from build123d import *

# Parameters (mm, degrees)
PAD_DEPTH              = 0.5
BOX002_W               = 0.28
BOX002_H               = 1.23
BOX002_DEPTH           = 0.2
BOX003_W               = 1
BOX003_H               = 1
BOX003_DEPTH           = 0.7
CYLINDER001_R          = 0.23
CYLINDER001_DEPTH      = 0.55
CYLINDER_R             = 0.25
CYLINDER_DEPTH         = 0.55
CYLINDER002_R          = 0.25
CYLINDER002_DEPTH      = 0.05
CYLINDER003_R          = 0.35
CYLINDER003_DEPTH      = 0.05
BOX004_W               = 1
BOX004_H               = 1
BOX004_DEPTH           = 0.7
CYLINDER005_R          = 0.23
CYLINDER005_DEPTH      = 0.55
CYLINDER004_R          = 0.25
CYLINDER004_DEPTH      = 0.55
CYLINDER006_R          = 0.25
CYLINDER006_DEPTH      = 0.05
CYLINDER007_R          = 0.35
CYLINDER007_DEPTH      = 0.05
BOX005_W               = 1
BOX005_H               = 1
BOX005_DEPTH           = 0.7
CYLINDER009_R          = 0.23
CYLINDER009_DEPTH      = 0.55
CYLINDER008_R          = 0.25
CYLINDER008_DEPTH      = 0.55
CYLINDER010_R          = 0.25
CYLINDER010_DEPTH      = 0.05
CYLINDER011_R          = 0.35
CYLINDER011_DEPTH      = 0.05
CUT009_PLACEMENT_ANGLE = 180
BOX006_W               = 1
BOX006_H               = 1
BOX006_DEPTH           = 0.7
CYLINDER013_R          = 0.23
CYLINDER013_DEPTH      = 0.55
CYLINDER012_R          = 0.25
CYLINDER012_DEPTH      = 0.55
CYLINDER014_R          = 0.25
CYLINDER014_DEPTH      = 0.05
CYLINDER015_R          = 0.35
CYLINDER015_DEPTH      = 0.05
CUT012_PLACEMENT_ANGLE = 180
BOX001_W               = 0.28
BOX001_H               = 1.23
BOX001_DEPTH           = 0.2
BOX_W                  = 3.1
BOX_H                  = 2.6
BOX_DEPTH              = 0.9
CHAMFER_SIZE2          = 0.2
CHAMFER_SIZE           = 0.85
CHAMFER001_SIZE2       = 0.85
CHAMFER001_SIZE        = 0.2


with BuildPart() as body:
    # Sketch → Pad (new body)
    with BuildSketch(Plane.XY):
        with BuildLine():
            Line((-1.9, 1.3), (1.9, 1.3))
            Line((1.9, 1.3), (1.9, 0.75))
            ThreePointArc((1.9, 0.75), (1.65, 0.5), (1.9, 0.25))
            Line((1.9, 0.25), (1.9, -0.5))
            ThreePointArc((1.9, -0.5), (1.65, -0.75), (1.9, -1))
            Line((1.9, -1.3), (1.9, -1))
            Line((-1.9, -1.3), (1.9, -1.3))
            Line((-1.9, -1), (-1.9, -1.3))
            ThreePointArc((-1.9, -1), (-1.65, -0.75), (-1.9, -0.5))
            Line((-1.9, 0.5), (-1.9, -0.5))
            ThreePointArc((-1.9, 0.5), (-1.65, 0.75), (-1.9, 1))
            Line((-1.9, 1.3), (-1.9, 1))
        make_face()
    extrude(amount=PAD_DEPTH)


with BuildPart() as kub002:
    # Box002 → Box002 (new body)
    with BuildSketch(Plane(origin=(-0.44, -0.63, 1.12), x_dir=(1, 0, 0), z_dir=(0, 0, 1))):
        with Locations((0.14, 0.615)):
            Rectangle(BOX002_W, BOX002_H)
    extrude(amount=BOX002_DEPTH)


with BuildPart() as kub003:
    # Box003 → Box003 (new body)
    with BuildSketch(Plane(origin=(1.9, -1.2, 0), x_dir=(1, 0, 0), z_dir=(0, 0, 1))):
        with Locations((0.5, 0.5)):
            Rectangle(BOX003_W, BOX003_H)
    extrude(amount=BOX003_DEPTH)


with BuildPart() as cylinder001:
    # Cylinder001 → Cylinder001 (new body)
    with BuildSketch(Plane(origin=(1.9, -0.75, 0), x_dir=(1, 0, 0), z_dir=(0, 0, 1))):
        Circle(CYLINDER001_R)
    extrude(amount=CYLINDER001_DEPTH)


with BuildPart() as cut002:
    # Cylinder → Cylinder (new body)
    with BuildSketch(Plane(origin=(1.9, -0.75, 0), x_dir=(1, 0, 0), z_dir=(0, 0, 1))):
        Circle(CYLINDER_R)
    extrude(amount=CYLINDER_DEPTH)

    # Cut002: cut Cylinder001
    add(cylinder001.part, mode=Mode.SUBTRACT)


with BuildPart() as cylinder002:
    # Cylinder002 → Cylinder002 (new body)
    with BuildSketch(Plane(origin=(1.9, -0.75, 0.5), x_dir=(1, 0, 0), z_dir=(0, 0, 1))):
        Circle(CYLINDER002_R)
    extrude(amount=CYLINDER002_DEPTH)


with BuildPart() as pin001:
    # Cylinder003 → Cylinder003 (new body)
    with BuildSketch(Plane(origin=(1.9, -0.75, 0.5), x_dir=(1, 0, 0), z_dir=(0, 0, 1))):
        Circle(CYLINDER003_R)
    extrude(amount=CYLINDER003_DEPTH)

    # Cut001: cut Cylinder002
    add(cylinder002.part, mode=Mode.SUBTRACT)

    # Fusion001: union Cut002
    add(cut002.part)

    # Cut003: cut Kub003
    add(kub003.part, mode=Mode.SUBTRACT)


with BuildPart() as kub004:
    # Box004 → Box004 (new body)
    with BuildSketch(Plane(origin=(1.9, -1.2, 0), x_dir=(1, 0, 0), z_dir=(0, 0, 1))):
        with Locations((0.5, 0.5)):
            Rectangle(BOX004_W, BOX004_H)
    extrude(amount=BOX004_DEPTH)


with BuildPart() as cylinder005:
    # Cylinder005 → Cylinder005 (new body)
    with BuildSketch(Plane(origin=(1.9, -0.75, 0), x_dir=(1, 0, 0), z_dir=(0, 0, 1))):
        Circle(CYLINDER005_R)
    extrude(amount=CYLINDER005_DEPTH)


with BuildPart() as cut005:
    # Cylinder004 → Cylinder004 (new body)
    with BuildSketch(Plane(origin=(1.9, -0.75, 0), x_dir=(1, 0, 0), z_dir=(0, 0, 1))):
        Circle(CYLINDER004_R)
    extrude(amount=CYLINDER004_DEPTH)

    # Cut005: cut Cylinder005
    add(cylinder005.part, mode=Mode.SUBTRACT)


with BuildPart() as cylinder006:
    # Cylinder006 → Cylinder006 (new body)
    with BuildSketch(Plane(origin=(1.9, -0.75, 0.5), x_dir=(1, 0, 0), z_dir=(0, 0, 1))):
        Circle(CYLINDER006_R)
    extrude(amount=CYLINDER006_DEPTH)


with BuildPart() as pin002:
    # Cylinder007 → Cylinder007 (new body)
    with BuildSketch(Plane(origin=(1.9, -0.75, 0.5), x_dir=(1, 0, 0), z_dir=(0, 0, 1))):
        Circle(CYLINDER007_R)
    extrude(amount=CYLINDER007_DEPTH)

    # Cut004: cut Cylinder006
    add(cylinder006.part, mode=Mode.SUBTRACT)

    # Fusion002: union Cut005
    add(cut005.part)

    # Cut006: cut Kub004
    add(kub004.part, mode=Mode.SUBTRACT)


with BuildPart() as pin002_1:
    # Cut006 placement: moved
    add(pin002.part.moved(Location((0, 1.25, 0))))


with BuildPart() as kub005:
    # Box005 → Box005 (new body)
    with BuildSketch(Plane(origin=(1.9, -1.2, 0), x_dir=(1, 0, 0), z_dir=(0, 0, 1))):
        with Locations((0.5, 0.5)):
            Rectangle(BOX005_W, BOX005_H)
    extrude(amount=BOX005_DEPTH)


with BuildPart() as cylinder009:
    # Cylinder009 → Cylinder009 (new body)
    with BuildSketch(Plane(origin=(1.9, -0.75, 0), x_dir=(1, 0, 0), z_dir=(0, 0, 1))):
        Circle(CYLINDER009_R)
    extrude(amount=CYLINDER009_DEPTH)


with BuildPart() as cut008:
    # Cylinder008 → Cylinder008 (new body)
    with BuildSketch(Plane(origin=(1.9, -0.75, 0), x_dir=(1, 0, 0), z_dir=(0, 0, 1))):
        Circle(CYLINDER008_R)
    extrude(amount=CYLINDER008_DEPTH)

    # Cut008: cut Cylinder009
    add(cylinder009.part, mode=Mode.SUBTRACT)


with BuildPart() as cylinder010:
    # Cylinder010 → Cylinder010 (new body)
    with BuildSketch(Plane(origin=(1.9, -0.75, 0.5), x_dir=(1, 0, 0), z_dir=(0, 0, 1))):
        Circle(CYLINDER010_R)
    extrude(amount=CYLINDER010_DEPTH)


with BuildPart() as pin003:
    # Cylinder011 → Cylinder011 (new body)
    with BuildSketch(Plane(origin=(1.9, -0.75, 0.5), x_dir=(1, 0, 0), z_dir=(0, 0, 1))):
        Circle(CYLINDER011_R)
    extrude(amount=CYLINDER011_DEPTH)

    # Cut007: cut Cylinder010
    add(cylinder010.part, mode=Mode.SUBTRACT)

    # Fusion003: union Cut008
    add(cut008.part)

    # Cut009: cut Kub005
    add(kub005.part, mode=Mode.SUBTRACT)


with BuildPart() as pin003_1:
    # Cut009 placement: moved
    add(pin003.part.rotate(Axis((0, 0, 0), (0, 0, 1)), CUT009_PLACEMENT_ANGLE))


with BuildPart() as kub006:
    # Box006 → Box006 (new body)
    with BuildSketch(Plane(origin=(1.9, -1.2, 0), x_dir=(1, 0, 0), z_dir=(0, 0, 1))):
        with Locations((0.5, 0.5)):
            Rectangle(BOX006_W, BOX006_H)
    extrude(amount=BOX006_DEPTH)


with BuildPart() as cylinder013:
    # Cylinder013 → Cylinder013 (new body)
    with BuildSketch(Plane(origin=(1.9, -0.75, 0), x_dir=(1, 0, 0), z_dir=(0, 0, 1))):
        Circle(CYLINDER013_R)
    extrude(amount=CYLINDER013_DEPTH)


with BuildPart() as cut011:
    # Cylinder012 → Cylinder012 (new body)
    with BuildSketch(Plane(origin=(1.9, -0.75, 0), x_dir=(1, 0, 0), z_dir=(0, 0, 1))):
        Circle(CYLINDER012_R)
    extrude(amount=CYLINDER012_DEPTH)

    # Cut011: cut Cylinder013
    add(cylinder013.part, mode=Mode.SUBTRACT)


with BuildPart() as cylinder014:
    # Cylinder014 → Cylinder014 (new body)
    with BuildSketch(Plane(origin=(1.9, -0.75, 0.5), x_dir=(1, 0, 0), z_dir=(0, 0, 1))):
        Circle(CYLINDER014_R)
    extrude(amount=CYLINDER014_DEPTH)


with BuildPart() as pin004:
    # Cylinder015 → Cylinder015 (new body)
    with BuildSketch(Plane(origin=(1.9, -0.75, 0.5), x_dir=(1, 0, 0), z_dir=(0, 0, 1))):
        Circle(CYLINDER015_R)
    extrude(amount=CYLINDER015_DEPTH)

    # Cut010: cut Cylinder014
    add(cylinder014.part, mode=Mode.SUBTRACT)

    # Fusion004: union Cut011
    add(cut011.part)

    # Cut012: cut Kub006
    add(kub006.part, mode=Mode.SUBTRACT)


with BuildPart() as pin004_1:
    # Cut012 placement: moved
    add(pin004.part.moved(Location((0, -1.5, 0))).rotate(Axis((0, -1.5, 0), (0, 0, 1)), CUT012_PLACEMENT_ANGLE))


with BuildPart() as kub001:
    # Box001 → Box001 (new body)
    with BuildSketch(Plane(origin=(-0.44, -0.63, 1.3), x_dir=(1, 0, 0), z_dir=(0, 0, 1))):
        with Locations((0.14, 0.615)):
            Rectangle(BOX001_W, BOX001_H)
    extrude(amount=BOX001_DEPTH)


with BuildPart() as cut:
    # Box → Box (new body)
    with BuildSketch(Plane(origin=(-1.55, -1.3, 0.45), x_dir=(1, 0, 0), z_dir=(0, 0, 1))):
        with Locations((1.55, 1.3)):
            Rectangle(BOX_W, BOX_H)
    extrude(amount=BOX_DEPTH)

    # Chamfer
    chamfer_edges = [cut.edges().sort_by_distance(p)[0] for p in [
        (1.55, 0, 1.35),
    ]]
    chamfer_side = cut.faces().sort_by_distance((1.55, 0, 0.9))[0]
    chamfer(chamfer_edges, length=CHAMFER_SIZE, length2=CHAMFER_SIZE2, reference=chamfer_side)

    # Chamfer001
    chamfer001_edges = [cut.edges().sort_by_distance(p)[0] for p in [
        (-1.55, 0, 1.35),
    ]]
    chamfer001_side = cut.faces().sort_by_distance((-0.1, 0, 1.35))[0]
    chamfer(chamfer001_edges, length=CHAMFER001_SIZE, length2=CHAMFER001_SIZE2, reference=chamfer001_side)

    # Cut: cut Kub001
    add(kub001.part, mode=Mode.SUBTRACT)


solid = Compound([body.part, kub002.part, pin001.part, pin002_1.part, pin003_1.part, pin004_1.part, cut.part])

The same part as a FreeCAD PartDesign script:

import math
import FreeCAD as App
import Part
import Sketcher
from FreeCAD import Vector


def edges_at(feature, points):
    """Names of the edges that pass closest to the given points."""
    edges = feature.Shape.Edges
    near = lambda p: min(range(len(edges)), key=lambda i: edges[i].distToShape(Part.Vertex(*p))[0])
    return sorted({f"Edge{near(p) + 1}" for p in points})


def add_polygon(sketch, points):
    """Adds a closed chain of lines whose ends are joined by coincident constraints."""
    first, n = sketch.GeometryCount, len(points)
    for a, b in zip(points, points[1:] + points[:1]):
        sketch.addGeometry(Part.LineSegment(App.Vector(*a, 0), App.Vector(*b, 0)), False)
    for i in range(n):
        sketch.addConstraint(Sketcher.Constraint("Coincident", first + i, 2, first + (i + 1) % n, 1))

doc = App.newDocument("Part")
body = doc.addObject("PartDesign::Body", "Body")

# Sketch on XY plane
sketch1 = body.newObject("Sketcher::SketchObject", "Sketch")
sketch1.AttachmentSupport = (doc.getObject("XY_Plane"), [""])
sketch1.MapMode = "FlatFace"
sketch1.addGeometry(Part.LineSegment(Vector(1.9, 1.3, 0), Vector(-1.9, 1.3, 0)), False)
sketch1.addGeometry(Part.LineSegment(Vector(-1.9, 1.3, 0), Vector(-1.9, 1, 0)), False)
sketch1.addGeometry(Part.ArcOfCircle(Part.Circle(Vector(-1.9, 0.75, 0), Vector(0, 0, 1), 0.25), math.radians(-90), math.radians(90)), False)
sketch1.addGeometry(Part.LineSegment(Vector(-1.9, 0.5, 0), Vector(-1.9, -0.5, 0)), False)
sketch1.addGeometry(Part.ArcOfCircle(Part.Circle(Vector(-1.9, -0.75, 0), Vector(0, 0, 1), 0.25), math.radians(-90), math.radians(90)), False)
sketch1.addGeometry(Part.LineSegment(Vector(-1.9, -1, 0), Vector(-1.9, -1.3, 0)), False)
sketch1.addGeometry(Part.LineSegment(Vector(-1.9, -1.3, 0), Vector(1.9, -1.3, 0)), False)
sketch1.addGeometry(Part.LineSegment(Vector(1.9, -1.3, 0), Vector(1.9, -1, 0)), False)
sketch1.addGeometry(Part.ArcOfCircle(Part.Circle(Vector(1.9, -0.75, 0), Vector(0, 0, 1), 0.25), math.radians(90), math.radians(270)), False)
sketch1.addGeometry(Part.LineSegment(Vector(1.9, -0.5, 0), Vector(1.9, 0.25, 0)), False)
sketch1.addGeometry(Part.ArcOfCircle(Part.Circle(Vector(1.9, 0.5, 0), Vector(0, 0, 1), 0.25), math.radians(90), math.radians(270)), False)
sketch1.addGeometry(Part.LineSegment(Vector(1.9, 0.75, 0), Vector(1.9, 1.3, 0)), False)
sketch1.addConstraint(Sketcher.Constraint("Coincident", 0, 2, 1, 1))
sketch1.addConstraint(Sketcher.Constraint("Coincident", 1, 2, 2, 2))
sketch1.addConstraint(Sketcher.Constraint("Coincident", 2, 1, 3, 1))
sketch1.addConstraint(Sketcher.Constraint("Coincident", 3, 2, 4, 2))
sketch1.addConstraint(Sketcher.Constraint("Coincident", 4, 1, 5, 1))
sketch1.addConstraint(Sketcher.Constraint("Coincident", 5, 2, 6, 1))
sketch1.addConstraint(Sketcher.Constraint("Coincident", 6, 2, 7, 1))
sketch1.addConstraint(Sketcher.Constraint("Coincident", 7, 2, 8, 2))
sketch1.addConstraint(Sketcher.Constraint("Coincident", 8, 1, 9, 1))
sketch1.addConstraint(Sketcher.Constraint("Coincident", 9, 2, 10, 2))
sketch1.addConstraint(Sketcher.Constraint("Coincident", 10, 1, 11, 1))
sketch1.addConstraint(Sketcher.Constraint("Coincident", 11, 2, 0, 1))
sketch1.addConstraint(Sketcher.Constraint("Horizontal", 0))
sketch1.addConstraint(Sketcher.Constraint("Vertical", 1))
sketch1.addConstraint(Sketcher.Constraint("Vertical", 3))
sketch1.addConstraint(Sketcher.Constraint("Vertical", 5))
sketch1.addConstraint(Sketcher.Constraint("Horizontal", 6))
sketch1.addConstraint(Sketcher.Constraint("Vertical", 7))
sketch1.addConstraint(Sketcher.Constraint("Vertical", 9))
sketch1.addConstraint(Sketcher.Constraint("Vertical", 11))
sketch1.addConstraint(Sketcher.Constraint("Equal", 2, 4))
sketch1.addConstraint(Sketcher.Constraint("Equal", 4, 8))
sketch1.addConstraint(Sketcher.Constraint("Equal", 8, 10))
sketch1.addConstraint(Sketcher.Constraint("Symmetric", 2, 3, 8, 3, -1, 1))
sketch1.addConstraint(Sketcher.Constraint("Symmetric", 0, 2, 6, 2, -1, 1))
sketch1.addConstraint(Sketcher.Constraint("Symmetric", 4, 3, 8, 3, -2))
sketch1.addConstraint(Sketcher.Constraint("Horizontal", 10, 3, 2, 1))
sketch1.addConstraint(Sketcher.Constraint("Vertical", 8, 3, 10, 3))
sketch1.addConstraint(Sketcher.Constraint("Vertical", 4, 3, 0, 2))
sketch1.addConstraint(Sketcher.Constraint("Vertical", 1, 2, 2, 1))
sketch1.addConstraint(Sketcher.Constraint("Vertical", 3, 2, 4, 1))
sketch1.addConstraint(Sketcher.Constraint("Vertical", 7, 2, 8, 1))
sketch1.addConstraint(Sketcher.Constraint("Vertical", 9, 2, 10, 1))
sketch1.addConstraint(Sketcher.Constraint("DistanceY", 3, 2, 3, 1, 1.0))
sketch1.addConstraint(Sketcher.Constraint("Radius", 2, 0.25))
sketch1.addConstraint(Sketcher.Constraint("DistanceX", 0, 2, 0, 1, 3.8))
sketch1.addConstraint(Sketcher.Constraint("DistanceY", 1, 2, 1, 1, 0.3))
pad1 = body.newObject("PartDesign::Pad", "Pad")
pad1.Profile = sketch1
pad1.Length = 0.5
body2 = doc.addObject("PartDesign::Body", "Body001")

# Sketch on XY plane
sketch2 = body2.newObject("Sketcher::SketchObject", "Sketch001")
sketch2.AttachmentSupport = (doc.getObject("XY_Plane001"), [""])
sketch2.MapMode = "FlatFace"
sketch2.AttachmentOffset = App.Placement(Vector(0, 0, 1.12), App.Rotation())
add_polygon(sketch2, [(-0.44, 0.6), (-0.44, -0.63), (-0.16, -0.63), (-0.16, 0.6)])  # lines 0-3
sketch2.addConstraint(Sketcher.Constraint("Vertical", 0))
sketch2.addConstraint(Sketcher.Constraint("Horizontal", 1))
sketch2.addConstraint(Sketcher.Constraint("Vertical", 2))
sketch2.addConstraint(Sketcher.Constraint("Horizontal", 3))
sketch2.addConstraint(Sketcher.Constraint("DistanceX", 1, 1, 1, 2, 0.28))
sketch2.addConstraint(Sketcher.Constraint("DistanceY", 0, 2, 0, 1, 1.23))
sketch2.addConstraint(Sketcher.Constraint("DistanceY", -1, 1, 2, 2, 0.6))
sketch2.addConstraint(Sketcher.Constraint("DistanceX", 0, 2, -1, 1, 0.44))
pad2 = body2.newObject("PartDesign::Pad", "Pad001")
pad2.Profile = sketch2
pad2.Length = 0.2
body3 = doc.addObject("PartDesign::Body", "Body002")

# Sketch on XY plane
sketch3 = body3.newObject("Sketcher::SketchObject", "Sketch002")
sketch3.AttachmentSupport = (doc.getObject("XY_Plane002"), [""])
sketch3.MapMode = "FlatFace"
add_polygon(sketch3, [(1.9, -0.2), (1.9, -1.2), (2.9, -1.2), (2.9, -0.2)])  # lines 0-3
sketch3.addConstraint(Sketcher.Constraint("Vertical", 0))
sketch3.addConstraint(Sketcher.Constraint("Horizontal", 1))
sketch3.addConstraint(Sketcher.Constraint("Vertical", 2))
sketch3.addConstraint(Sketcher.Constraint("Horizontal", 3))
sketch3.addConstraint(Sketcher.Constraint("Equal", 3, 0))
sketch3.addConstraint(Sketcher.Constraint("DistanceX", 1, 1, 1, 2, 1.0))
sketch3.addConstraint(Sketcher.Constraint("DistanceX", -1, 1, 0, 2, 1.9))
sketch3.addConstraint(Sketcher.Constraint("DistanceY", 0, 2, -1, 1, 1.2))
pad3 = body3.newObject("PartDesign::Pad", "Pad002")
pad3.Profile = sketch3
pad3.Length = 0.7
body4 = doc.addObject("PartDesign::Body", "Body003")

# Sketch on XY plane
sketch4 = body4.newObject("Sketcher::SketchObject", "Sketch003")
sketch4.AttachmentSupport = (doc.getObject("XY_Plane003"), [""])
sketch4.MapMode = "FlatFace"
sketch4.addGeometry(Part.Circle(Vector(1.9, -0.75, 0), Vector(0, 0, 1), 0.23), False)
sketch4.addConstraint(Sketcher.Constraint("Diameter", 0, 0.46))
sketch4.addConstraint(Sketcher.Constraint("DistanceX", -1, 1, 0, 3, 1.9))
sketch4.addConstraint(Sketcher.Constraint("DistanceY", 0, 3, -1, 1, 0.75))
pad4 = body4.newObject("PartDesign::Pad", "Pad003")
pad4.Profile = sketch4
pad4.Length = 0.55
body5 = doc.addObject("PartDesign::Body", "Body004")

# Sketch on XY plane
sketch5 = body5.newObject("Sketcher::SketchObject", "Sketch004")
sketch5.AttachmentSupport = (doc.getObject("XY_Plane004"), [""])
sketch5.MapMode = "FlatFace"
sketch5.addGeometry(Part.Circle(Vector(1.9, -0.75, 0), Vector(0, 0, 1), 0.25), False)
sketch5.addConstraint(Sketcher.Constraint("Diameter", 0, 0.5))
sketch5.addConstraint(Sketcher.Constraint("DistanceX", -1, 1, 0, 3, 1.9))
sketch5.addConstraint(Sketcher.Constraint("DistanceY", 0, 3, -1, 1, 0.75))
pad5 = body5.newObject("PartDesign::Pad", "Pad004")
pad5.Profile = sketch5
pad5.Length = 0.55
doc.recompute()

boolean = body5.newObject("PartDesign::Boolean", "Boolean")
boolean.Type = "Cut"
boolean.addObjects([body4])
body6 = doc.addObject("PartDesign::Body", "Body005")

# Sketch on XY plane
sketch6 = body6.newObject("Sketcher::SketchObject", "Sketch005")
sketch6.AttachmentSupport = (doc.getObject("XY_Plane005"), [""])
sketch6.MapMode = "FlatFace"
sketch6.AttachmentOffset = App.Placement(Vector(0, 0, 0.5), App.Rotation())
sketch6.addGeometry(Part.Circle(Vector(1.9, -0.75, 0), Vector(0, 0, 1), 0.25), False)
sketch6.addConstraint(Sketcher.Constraint("Diameter", 0, 0.5))
sketch6.addConstraint(Sketcher.Constraint("DistanceX", -1, 1, 0, 3, 1.9))
sketch6.addConstraint(Sketcher.Constraint("DistanceY", 0, 3, -1, 1, 0.75))
pad6 = body6.newObject("PartDesign::Pad", "Pad005")
pad6.Profile = sketch6
pad6.Length = 0.05
body7 = doc.addObject("PartDesign::Body", "Body006")

# Sketch on XY plane
sketch7 = body7.newObject("Sketcher::SketchObject", "Sketch006")
sketch7.AttachmentSupport = (doc.getObject("XY_Plane006"), [""])
sketch7.MapMode = "FlatFace"
sketch7.AttachmentOffset = App.Placement(Vector(0, 0, 0.5), App.Rotation())
sketch7.addGeometry(Part.Circle(Vector(1.9, -0.75, 0), Vector(0, 0, 1), 0.35), False)
sketch7.addConstraint(Sketcher.Constraint("Diameter", 0, 0.7))
sketch7.addConstraint(Sketcher.Constraint("DistanceX", -1, 1, 0, 3, 1.9))
sketch7.addConstraint(Sketcher.Constraint("DistanceY", 0, 3, -1, 1, 0.75))
pad7 = body7.newObject("PartDesign::Pad", "Pad006")
pad7.Profile = sketch7
pad7.Length = 0.05
doc.recompute()

boolean2 = body7.newObject("PartDesign::Boolean", "Boolean001")
boolean2.Type = "Cut"
boolean2.addObjects([body6])
doc.recompute()

boolean3 = body7.newObject("PartDesign::Boolean", "Boolean002")
boolean3.Type = "Fuse"
boolean3.addObjects([body5])
doc.recompute()

boolean4 = body7.newObject("PartDesign::Boolean", "Boolean003")
boolean4.Type = "Cut"
boolean4.addObjects([body3])
body8 = doc.addObject("PartDesign::Body", "Body007")

# Sketch on XY plane
sketch8 = body8.newObject("Sketcher::SketchObject", "Sketch007")
sketch8.AttachmentSupport = (doc.getObject("XY_Plane007"), [""])
sketch8.MapMode = "FlatFace"
add_polygon(sketch8, [(1.9, -0.2), (1.9, -1.2), (2.9, -1.2), (2.9, -0.2)])  # lines 0-3
sketch8.addConstraint(Sketcher.Constraint("Vertical", 0))
sketch8.addConstraint(Sketcher.Constraint("Horizontal", 1))
sketch8.addConstraint(Sketcher.Constraint("Vertical", 2))
sketch8.addConstraint(Sketcher.Constraint("Horizontal", 3))
sketch8.addConstraint(Sketcher.Constraint("Equal", 3, 0))
sketch8.addConstraint(Sketcher.Constraint("DistanceX", 1, 1, 1, 2, 1.0))
sketch8.addConstraint(Sketcher.Constraint("DistanceX", -1, 1, 0, 2, 1.9))
sketch8.addConstraint(Sketcher.Constraint("DistanceY", 0, 2, -1, 1, 1.2))
pad8 = body8.newObject("PartDesign::Pad", "Pad007")
pad8.Profile = sketch8
pad8.Length = 0.7
body9 = doc.addObject("PartDesign::Body", "Body008")

# Sketch on XY plane
sketch9 = body9.newObject("Sketcher::SketchObject", "Sketch008")
sketch9.AttachmentSupport = (doc.getObject("XY_Plane008"), [""])
sketch9.MapMode = "FlatFace"
sketch9.addGeometry(Part.Circle(Vector(1.9, -0.75, 0), Vector(0, 0, 1), 0.23), False)
sketch9.addConstraint(Sketcher.Constraint("Diameter", 0, 0.46))
sketch9.addConstraint(Sketcher.Constraint("DistanceX", -1, 1, 0, 3, 1.9))
sketch9.addConstraint(Sketcher.Constraint("DistanceY", 0, 3, -1, 1, 0.75))
pad9 = body9.newObject("PartDesign::Pad", "Pad008")
pad9.Profile = sketch9
pad9.Length = 0.55
body10 = doc.addObject("PartDesign::Body", "Body009")

# Sketch on XY plane
sketch10 = body10.newObject("Sketcher::SketchObject", "Sketch009")
sketch10.AttachmentSupport = (doc.getObject("XY_Plane009"), [""])
sketch10.MapMode = "FlatFace"
sketch10.addGeometry(Part.Circle(Vector(1.9, -0.75, 0), Vector(0, 0, 1), 0.25), False)
sketch10.addConstraint(Sketcher.Constraint("Diameter", 0, 0.5))
sketch10.addConstraint(Sketcher.Constraint("DistanceX", -1, 1, 0, 3, 1.9))
sketch10.addConstraint(Sketcher.Constraint("DistanceY", 0, 3, -1, 1, 0.75))
pad10 = body10.newObject("PartDesign::Pad", "Pad009")
pad10.Profile = sketch10
pad10.Length = 0.55
doc.recompute()

boolean5 = body10.newObject("PartDesign::Boolean", "Boolean004")
boolean5.Type = "Cut"
boolean5.addObjects([body9])
body11 = doc.addObject("PartDesign::Body", "Body010")

# Sketch on XY plane
sketch11 = body11.newObject("Sketcher::SketchObject", "Sketch010")
sketch11.AttachmentSupport = (doc.getObject("XY_Plane010"), [""])
sketch11.MapMode = "FlatFace"
sketch11.AttachmentOffset = App.Placement(Vector(0, 0, 0.5), App.Rotation())
sketch11.addGeometry(Part.Circle(Vector(1.9, -0.75, 0), Vector(0, 0, 1), 0.25), False)
sketch11.addConstraint(Sketcher.Constraint("Diameter", 0, 0.5))
sketch11.addConstraint(Sketcher.Constraint("DistanceX", -1, 1, 0, 3, 1.9))
sketch11.addConstraint(Sketcher.Constraint("DistanceY", 0, 3, -1, 1, 0.75))
pad11 = body11.newObject("PartDesign::Pad", "Pad010")
pad11.Profile = sketch11
pad11.Length = 0.05
body12 = doc.addObject("PartDesign::Body", "Body011")

# Sketch on XY plane
sketch12 = body12.newObject("Sketcher::SketchObject", "Sketch011")
sketch12.AttachmentSupport = (doc.getObject("XY_Plane011"), [""])
sketch12.MapMode = "FlatFace"
sketch12.AttachmentOffset = App.Placement(Vector(0, 0, 0.5), App.Rotation())
sketch12.addGeometry(Part.Circle(Vector(1.9, -0.75, 0), Vector(0, 0, 1), 0.35), False)
sketch12.addConstraint(Sketcher.Constraint("Diameter", 0, 0.7))
sketch12.addConstraint(Sketcher.Constraint("DistanceX", -1, 1, 0, 3, 1.9))
sketch12.addConstraint(Sketcher.Constraint("DistanceY", 0, 3, -1, 1, 0.75))
pad12 = body12.newObject("PartDesign::Pad", "Pad011")
pad12.Profile = sketch12
pad12.Length = 0.05
doc.recompute()

boolean6 = body12.newObject("PartDesign::Boolean", "Boolean005")
boolean6.Type = "Cut"
boolean6.addObjects([body11])
doc.recompute()

boolean7 = body12.newObject("PartDesign::Boolean", "Boolean006")
boolean7.Type = "Fuse"
boolean7.addObjects([body10])
doc.recompute()

boolean8 = body12.newObject("PartDesign::Boolean", "Boolean007")
boolean8.Type = "Cut"
boolean8.addObjects([body8])
body13 = doc.addObject("PartDesign::Body", "Body012")
doc.recompute()

body12.Placement = App.Placement(Vector(0, 1.25, 0), App.Rotation(Vector(0, 0, 1), 0))
boolean9 = body13.newObject("PartDesign::Boolean", "Boolean008")
boolean9.Type = "Fuse"
boolean9.addObjects([body12])
body14 = doc.addObject("PartDesign::Body", "Body013")

# Sketch on XY plane
sketch13 = body14.newObject("Sketcher::SketchObject", "Sketch012")
sketch13.AttachmentSupport = (doc.getObject("XY_Plane013"), [""])
sketch13.MapMode = "FlatFace"
add_polygon(sketch13, [(1.9, -0.2), (1.9, -1.2), (2.9, -1.2), (2.9, -0.2)])  # lines 0-3
sketch13.addConstraint(Sketcher.Constraint("Vertical", 0))
sketch13.addConstraint(Sketcher.Constraint("Horizontal", 1))
sketch13.addConstraint(Sketcher.Constraint("Vertical", 2))
sketch13.addConstraint(Sketcher.Constraint("Horizontal", 3))
sketch13.addConstraint(Sketcher.Constraint("Equal", 3, 0))
sketch13.addConstraint(Sketcher.Constraint("DistanceX", 1, 1, 1, 2, 1.0))
sketch13.addConstraint(Sketcher.Constraint("DistanceX", -1, 1, 0, 2, 1.9))
sketch13.addConstraint(Sketcher.Constraint("DistanceY", 0, 2, -1, 1, 1.2))
pad13 = body14.newObject("PartDesign::Pad", "Pad012")
pad13.Profile = sketch13
pad13.Length = 0.7
body15 = doc.addObject("PartDesign::Body", "Body014")

# Sketch on XY plane
sketch14 = body15.newObject("Sketcher::SketchObject", "Sketch013")
sketch14.AttachmentSupport = (doc.getObject("XY_Plane014"), [""])
sketch14.MapMode = "FlatFace"
sketch14.addGeometry(Part.Circle(Vector(1.9, -0.75, 0), Vector(0, 0, 1), 0.23), False)
sketch14.addConstraint(Sketcher.Constraint("Diameter", 0, 0.46))
sketch14.addConstraint(Sketcher.Constraint("DistanceX", -1, 1, 0, 3, 1.9))
sketch14.addConstraint(Sketcher.Constraint("DistanceY", 0, 3, -1, 1, 0.75))
pad14 = body15.newObject("PartDesign::Pad", "Pad013")
pad14.Profile = sketch14
pad14.Length = 0.55
body16 = doc.addObject("PartDesign::Body", "Body015")

# Sketch on XY plane
sketch15 = body16.newObject("Sketcher::SketchObject", "Sketch014")
sketch15.AttachmentSupport = (doc.getObject("XY_Plane015"), [""])
sketch15.MapMode = "FlatFace"
sketch15.addGeometry(Part.Circle(Vector(1.9, -0.75, 0), Vector(0, 0, 1), 0.25), False)
sketch15.addConstraint(Sketcher.Constraint("Diameter", 0, 0.5))
sketch15.addConstraint(Sketcher.Constraint("DistanceX", -1, 1, 0, 3, 1.9))
sketch15.addConstraint(Sketcher.Constraint("DistanceY", 0, 3, -1, 1, 0.75))
pad15 = body16.newObject("PartDesign::Pad", "Pad014")
pad15.Profile = sketch15
pad15.Length = 0.55
doc.recompute()

boolean10 = body16.newObject("PartDesign::Boolean", "Boolean009")
boolean10.Type = "Cut"
boolean10.addObjects([body15])
body17 = doc.addObject("PartDesign::Body", "Body016")

# Sketch on XY plane
sketch16 = body17.newObject("Sketcher::SketchObject", "Sketch015")
sketch16.AttachmentSupport = (doc.getObject("XY_Plane016"), [""])
sketch16.MapMode = "FlatFace"
sketch16.AttachmentOffset = App.Placement(Vector(0, 0, 0.5), App.Rotation())
sketch16.addGeometry(Part.Circle(Vector(1.9, -0.75, 0), Vector(0, 0, 1), 0.25), False)
sketch16.addConstraint(Sketcher.Constraint("Diameter", 0, 0.5))
sketch16.addConstraint(Sketcher.Constraint("DistanceX", -1, 1, 0, 3, 1.9))
sketch16.addConstraint(Sketcher.Constraint("DistanceY", 0, 3, -1, 1, 0.75))
pad16 = body17.newObject("PartDesign::Pad", "Pad015")
pad16.Profile = sketch16
pad16.Length = 0.05
body18 = doc.addObject("PartDesign::Body", "Body017")

# Sketch on XY plane
sketch17 = body18.newObject("Sketcher::SketchObject", "Sketch016")
sketch17.AttachmentSupport = (doc.getObject("XY_Plane017"), [""])
sketch17.MapMode = "FlatFace"
sketch17.AttachmentOffset = App.Placement(Vector(0, 0, 0.5), App.Rotation())
sketch17.addGeometry(Part.Circle(Vector(1.9, -0.75, 0), Vector(0, 0, 1), 0.35), False)
sketch17.addConstraint(Sketcher.Constraint("Diameter", 0, 0.7))
sketch17.addConstraint(Sketcher.Constraint("DistanceX", -1, 1, 0, 3, 1.9))
sketch17.addConstraint(Sketcher.Constraint("DistanceY", 0, 3, -1, 1, 0.75))
pad17 = body18.newObject("PartDesign::Pad", "Pad016")
pad17.Profile = sketch17
pad17.Length = 0.05
doc.recompute()

boolean11 = body18.newObject("PartDesign::Boolean", "Boolean010")
boolean11.Type = "Cut"
boolean11.addObjects([body17])
doc.recompute()

boolean12 = body18.newObject("PartDesign::Boolean", "Boolean011")
boolean12.Type = "Fuse"
boolean12.addObjects([body16])
doc.recompute()

boolean13 = body18.newObject("PartDesign::Boolean", "Boolean012")
boolean13.Type = "Cut"
boolean13.addObjects([body14])
body19 = doc.addObject("PartDesign::Body", "Body018")
doc.recompute()

body18.Placement = App.Placement(Vector(0, 0, 0), App.Rotation(Vector(0, 0, 1), 180))
boolean14 = body19.newObject("PartDesign::Boolean", "Boolean013")
boolean14.Type = "Fuse"
boolean14.addObjects([body18])
body20 = doc.addObject("PartDesign::Body", "Body019")

# Sketch on XY plane
sketch18 = body20.newObject("Sketcher::SketchObject", "Sketch017")
sketch18.AttachmentSupport = (doc.getObject("XY_Plane019"), [""])
sketch18.MapMode = "FlatFace"
add_polygon(sketch18, [(1.9, -0.2), (1.9, -1.2), (2.9, -1.2), (2.9, -0.2)])  # lines 0-3
sketch18.addConstraint(Sketcher.Constraint("Vertical", 0))
sketch18.addConstraint(Sketcher.Constraint("Horizontal", 1))
sketch18.addConstraint(Sketcher.Constraint("Vertical", 2))
sketch18.addConstraint(Sketcher.Constraint("Horizontal", 3))
sketch18.addConstraint(Sketcher.Constraint("Equal", 3, 0))
sketch18.addConstraint(Sketcher.Constraint("DistanceX", 1, 1, 1, 2, 1.0))
sketch18.addConstraint(Sketcher.Constraint("DistanceX", -1, 1, 0, 2, 1.9))
sketch18.addConstraint(Sketcher.Constraint("DistanceY", 0, 2, -1, 1, 1.2))
pad18 = body20.newObject("PartDesign::Pad", "Pad017")
pad18.Profile = sketch18
pad18.Length = 0.7
body21 = doc.addObject("PartDesign::Body", "Body020")

# Sketch on XY plane
sketch19 = body21.newObject("Sketcher::SketchObject", "Sketch018")
sketch19.AttachmentSupport = (doc.getObject("XY_Plane020"), [""])
sketch19.MapMode = "FlatFace"
sketch19.addGeometry(Part.Circle(Vector(1.9, -0.75, 0), Vector(0, 0, 1), 0.23), False)
sketch19.addConstraint(Sketcher.Constraint("Diameter", 0, 0.46))
sketch19.addConstraint(Sketcher.Constraint("DistanceX", -1, 1, 0, 3, 1.9))
sketch19.addConstraint(Sketcher.Constraint("DistanceY", 0, 3, -1, 1, 0.75))
pad19 = body21.newObject("PartDesign::Pad", "Pad018")
pad19.Profile = sketch19
pad19.Length = 0.55
body22 = doc.addObject("PartDesign::Body", "Body021")

# Sketch on XY plane
sketch20 = body22.newObject("Sketcher::SketchObject", "Sketch019")
sketch20.AttachmentSupport = (doc.getObject("XY_Plane021"), [""])
sketch20.MapMode = "FlatFace"
sketch20.addGeometry(Part.Circle(Vector(1.9, -0.75, 0), Vector(0, 0, 1), 0.25), False)
sketch20.addConstraint(Sketcher.Constraint("Diameter", 0, 0.5))
sketch20.addConstraint(Sketcher.Constraint("DistanceX", -1, 1, 0, 3, 1.9))
sketch20.addConstraint(Sketcher.Constraint("DistanceY", 0, 3, -1, 1, 0.75))
pad20 = body22.newObject("PartDesign::Pad", "Pad019")
pad20.Profile = sketch20
pad20.Length = 0.55
doc.recompute()

boolean15 = body22.newObject("PartDesign::Boolean", "Boolean014")
boolean15.Type = "Cut"
boolean15.addObjects([body21])
body23 = doc.addObject("PartDesign::Body", "Body022")

# Sketch on XY plane
sketch21 = body23.newObject("Sketcher::SketchObject", "Sketch020")
sketch21.AttachmentSupport = (doc.getObject("XY_Plane022"), [""])
sketch21.MapMode = "FlatFace"
sketch21.AttachmentOffset = App.Placement(Vector(0, 0, 0.5), App.Rotation())
sketch21.addGeometry(Part.Circle(Vector(1.9, -0.75, 0), Vector(0, 0, 1), 0.25), False)
sketch21.addConstraint(Sketcher.Constraint("Diameter", 0, 0.5))
sketch21.addConstraint(Sketcher.Constraint("DistanceX", -1, 1, 0, 3, 1.9))
sketch21.addConstraint(Sketcher.Constraint("DistanceY", 0, 3, -1, 1, 0.75))
pad21 = body23.newObject("PartDesign::Pad", "Pad020")
pad21.Profile = sketch21
pad21.Length = 0.05
body24 = doc.addObject("PartDesign::Body", "Body023")

# Sketch on XY plane
sketch22 = body24.newObject("Sketcher::SketchObject", "Sketch021")
sketch22.AttachmentSupport = (doc.getObject("XY_Plane023"), [""])
sketch22.MapMode = "FlatFace"
sketch22.AttachmentOffset = App.Placement(Vector(0, 0, 0.5), App.Rotation())
sketch22.addGeometry(Part.Circle(Vector(1.9, -0.75, 0), Vector(0, 0, 1), 0.35), False)
sketch22.addConstraint(Sketcher.Constraint("Diameter", 0, 0.7))
sketch22.addConstraint(Sketcher.Constraint("DistanceX", -1, 1, 0, 3, 1.9))
sketch22.addConstraint(Sketcher.Constraint("DistanceY", 0, 3, -1, 1, 0.75))
pad22 = body24.newObject("PartDesign::Pad", "Pad021")
pad22.Profile = sketch22
pad22.Length = 0.05
doc.recompute()

boolean16 = body24.newObject("PartDesign::Boolean", "Boolean015")
boolean16.Type = "Cut"
boolean16.addObjects([body23])
doc.recompute()

boolean17 = body24.newObject("PartDesign::Boolean", "Boolean016")
boolean17.Type = "Fuse"
boolean17.addObjects([body22])
doc.recompute()

boolean18 = body24.newObject("PartDesign::Boolean", "Boolean017")
boolean18.Type = "Cut"
boolean18.addObjects([body20])
body25 = doc.addObject("PartDesign::Body", "Body024")
doc.recompute()

body24.Placement = App.Placement(Vector(0, -1.5, 0), App.Rotation(Vector(0, 0, 1), 180))
boolean19 = body25.newObject("PartDesign::Boolean", "Boolean018")
boolean19.Type = "Fuse"
boolean19.addObjects([body24])
body26 = doc.addObject("PartDesign::Body", "Body025")

# Sketch on XY plane
sketch23 = body26.newObject("Sketcher::SketchObject", "Sketch022")
sketch23.AttachmentSupport = (doc.getObject("XY_Plane025"), [""])
sketch23.MapMode = "FlatFace"
sketch23.AttachmentOffset = App.Placement(Vector(0, 0, 1.3), App.Rotation())
add_polygon(sketch23, [(-0.44, 0.6), (-0.44, -0.63), (-0.16, -0.63), (-0.16, 0.6)])  # lines 0-3
sketch23.addConstraint(Sketcher.Constraint("Vertical", 0))
sketch23.addConstraint(Sketcher.Constraint("Horizontal", 1))
sketch23.addConstraint(Sketcher.Constraint("Vertical", 2))
sketch23.addConstraint(Sketcher.Constraint("Horizontal", 3))
sketch23.addConstraint(Sketcher.Constraint("DistanceX", 1, 1, 1, 2, 0.28))
sketch23.addConstraint(Sketcher.Constraint("DistanceY", 0, 2, 0, 1, 1.23))
sketch23.addConstraint(Sketcher.Constraint("DistanceY", -1, 1, 2, 2, 0.6))
sketch23.addConstraint(Sketcher.Constraint("DistanceX", 0, 2, -1, 1, 0.44))
pad23 = body26.newObject("PartDesign::Pad", "Pad022")
pad23.Profile = sketch23
pad23.Length = 0.2
body27 = doc.addObject("PartDesign::Body", "Body026")

# Sketch on XY plane
sketch24 = body27.newObject("Sketcher::SketchObject", "Sketch023")
sketch24.AttachmentSupport = (doc.getObject("XY_Plane026"), [""])
sketch24.MapMode = "FlatFace"
sketch24.AttachmentOffset = App.Placement(Vector(0, 0, 0.45), App.Rotation())
add_polygon(sketch24, [(-1.6, 1.3), (-1.6, -1.3), (1.6, -1.3), (1.6, 1.3)])  # lines 0-3
sketch24.addConstraint(Sketcher.Constraint("Vertical", 0))
sketch24.addConstraint(Sketcher.Constraint("Horizontal", 1))
sketch24.addConstraint(Sketcher.Constraint("Vertical", 2))
sketch24.addConstraint(Sketcher.Constraint("Horizontal", 3))
sketch24.addConstraint(Sketcher.Constraint("Symmetric", 0, 2, 2, 2, -1, 1))
sketch24.addConstraint(Sketcher.Constraint("DistanceX", 1, 1, 1, 2, 3.1))
sketch24.addConstraint(Sketcher.Constraint("DistanceY", 0, 2, 0, 1, 2.6))
pad24 = body27.newObject("PartDesign::Pad", "Pad023")
pad24.Profile = sketch24
pad24.Length = 0.9
doc.recompute()

chamfer = body27.newObject("PartDesign::Chamfer", "Chamfer")
chamfer.Base = (pad24, edges_at(pad24, [(1.55, 0, 1.35)]))
chamfer.ChamferType = "Two distances"
chamfer.Size = 0.85
chamfer.Size2 = 0.2
doc.recompute()

chamfer2 = body27.newObject("PartDesign::Chamfer", "Chamfer001")
chamfer2.Base = (chamfer, edges_at(chamfer, [(-1.55, 0, 1.35)]))
chamfer2.ChamferType = "Two distances"
chamfer2.Size = 0.2
chamfer2.Size2 = 0.85
doc.recompute()

boolean20 = body27.newObject("PartDesign::Boolean", "Boolean019")
boolean20.Type = "Cut"
boolean20.addObjects([body26])

doc.recompute()
